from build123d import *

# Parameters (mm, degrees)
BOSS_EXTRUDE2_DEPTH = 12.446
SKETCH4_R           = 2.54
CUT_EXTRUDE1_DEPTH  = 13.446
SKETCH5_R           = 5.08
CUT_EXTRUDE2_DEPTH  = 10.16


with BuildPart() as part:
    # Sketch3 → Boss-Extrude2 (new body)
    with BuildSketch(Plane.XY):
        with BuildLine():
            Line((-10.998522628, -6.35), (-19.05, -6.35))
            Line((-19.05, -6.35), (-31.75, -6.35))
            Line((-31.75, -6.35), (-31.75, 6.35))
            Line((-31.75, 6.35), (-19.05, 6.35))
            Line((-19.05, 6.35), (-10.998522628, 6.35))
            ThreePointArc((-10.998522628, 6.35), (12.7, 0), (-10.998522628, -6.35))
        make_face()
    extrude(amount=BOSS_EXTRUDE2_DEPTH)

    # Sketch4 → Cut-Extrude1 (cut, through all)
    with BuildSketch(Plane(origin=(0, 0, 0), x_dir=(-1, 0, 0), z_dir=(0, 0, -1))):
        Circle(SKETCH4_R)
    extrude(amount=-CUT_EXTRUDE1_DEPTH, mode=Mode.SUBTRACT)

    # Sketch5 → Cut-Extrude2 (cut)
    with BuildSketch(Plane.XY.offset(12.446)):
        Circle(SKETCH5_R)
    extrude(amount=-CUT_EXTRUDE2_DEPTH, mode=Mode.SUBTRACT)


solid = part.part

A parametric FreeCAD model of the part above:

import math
import FreeCAD as App
import Part
import Sketcher
Q = App.Units.Quantity

doc = App.newDocument("Part")
body = doc.addObject("PartDesign::Body", "Body")

sketch1 = body.newObject("Sketcher::SketchObject", "Sketch")
sketch1.AttachmentSupport = (doc.getObject("XY_Plane"), [""])
sketch1.MapMode = "FlatFace"
sketch1.addGeometry([
    Part.LineSegment(App.Vector(-32, -6, 0), App.Vector(-11, -6, 0)),
    Part.ArcOfCircle(Part.Circle(App.Vector(0, 0, 0), App.Vector(0, 0, 1), 13), math.radians(-150), math.radians(150)),
    Part.LineSegment(App.Vector(-11, 6, 0), App.Vector(-32, 6, 0)),
    Part.LineSegment(App.Vector(-32, 6, 0), App.Vector(-32, -6, 0)),
], False)
sketch1.addConstraint([
    Sketcher.Constraint("Coincident", 0, 2, 1, 1),
    Sketcher.Constraint("Coincident", 1, 2, 2, 1),
    Sketcher.Constraint("Coincident", 2, 2, 3, 1),
    Sketcher.Constraint("Coincident", 3, 2, 0, 1),
    Sketcher.Constraint("Horizontal", 0),
    Sketcher.Constraint("Horizontal", 2),
    Sketcher.Constraint("Vertical", 3),
    Sketcher.Constraint("Coincident", 1, 3, -1, 1),
    Sketcher.Constraint("Vertical", 0, 2, 1, 2),
    Sketcher.Constraint("Radius", 1, Q("0.5 in")),
    Sketcher.Constraint("DistanceY", 3, 2, 3, 1, Q("0.5 in")),
    Sketcher.Constraint("DistanceX", 2, 2, -1, 1, Q("1.25 in")),
])
pad1 = body.newObject("PartDesign::Pad", "Pad")
pad1.Profile = sketch1
pad1.Length = Q("0.49 in")

sketch2 = body.newObject("Sketcher::SketchObject", "Sketch001")
sketch2.AttachmentSupport = (doc.getObject("XY_Plane"), [""])
sketch2.MapMode = "FlatFace"
sketch2.addGeometry(Part.Circle(App.Vector(0, 0, 0), App.Vector(0, 0, 1), 2.5), False)
sketch2.addConstraint([
    Sketcher.Constraint("Coincident", 0, 3, -1, 1),
    Sketcher.Constraint("Diameter", 0, Q("0.2 in")),
])
pocket1 = body.newObject("PartDesign::Pocket", "Pocket")
pocket1.Profile = sketch2
pocket1.Type = "ThroughAll"
pocket1.Reversed = True

sketch3 = body.newObject("Sketcher::SketchObject", "Sketch002")
sketch3.AttachmentSupport = (doc.getObject("XY_Plane"), [""])
sketch3.MapMode = "FlatFace"
sketch3.AttachmentOffset = App.Placement(App.Vector(0, 0, 0.49 * 25.4), App.Rotation())
sketch3.addGeometry(Part.Circle(App.Vector(0, 0, 0), App.Vector(0, 0, 1), 5), False)
sketch3.addConstraint([
    Sketcher.Constraint("Coincident", 0, 3, -1, 1),
    Sketcher.Constraint("Diameter", 0, Q("0.4 in")),
])
pocket2 = body.newObject("PartDesign::Pocket", "Pocket001")
pocket2.Profile = sketch3
pocket2.Length = Q("0.4 in")

doc.recompute()
